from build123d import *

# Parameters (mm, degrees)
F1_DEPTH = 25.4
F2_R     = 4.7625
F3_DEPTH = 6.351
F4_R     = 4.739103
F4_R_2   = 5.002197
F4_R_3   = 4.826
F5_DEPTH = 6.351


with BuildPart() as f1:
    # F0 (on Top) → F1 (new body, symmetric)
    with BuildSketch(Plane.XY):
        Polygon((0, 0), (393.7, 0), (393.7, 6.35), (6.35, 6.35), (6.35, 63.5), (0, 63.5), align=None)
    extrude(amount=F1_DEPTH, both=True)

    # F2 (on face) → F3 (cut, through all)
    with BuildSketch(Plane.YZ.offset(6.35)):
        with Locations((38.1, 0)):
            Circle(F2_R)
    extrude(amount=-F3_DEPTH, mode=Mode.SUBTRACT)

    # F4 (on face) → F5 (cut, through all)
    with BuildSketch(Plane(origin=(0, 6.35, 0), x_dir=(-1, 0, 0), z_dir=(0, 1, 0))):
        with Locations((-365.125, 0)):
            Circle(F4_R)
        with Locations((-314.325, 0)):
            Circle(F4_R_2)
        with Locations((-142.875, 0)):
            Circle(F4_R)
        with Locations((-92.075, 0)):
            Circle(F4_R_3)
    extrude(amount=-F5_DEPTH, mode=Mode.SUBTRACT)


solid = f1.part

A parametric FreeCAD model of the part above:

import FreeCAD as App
import Part
import Sketcher

V = App.Vector
Q = App.Units.Quantity


def add_polygon(sketch, points):
    """Adds a closed chain of lines whose ends are joined by coincident constraints."""
    first, n = sketch.GeometryCount, len(points)
    for a, b in zip(points, points[1:] + points[:1]):
        sketch.addGeometry(Part.LineSegment(App.Vector(*a, 0), App.Vector(*b, 0)), False)
    for i in range(n):
        sketch.addConstraint(Sketcher.Constraint("Coincident", first + i, 2, first + (i + 1) % n, 1))

doc = App.newDocument("Part")
body = doc.addObject("PartDesign::Body", "Body")

sketch1 = body.newObject("Sketcher::SketchObject", "Sketch")
sketch1.AttachmentSupport = (doc.getObject("XY_Plane"), [""])
sketch1.MapMode = "FlatFace"
add_polygon(sketch1, [(0, 0), (393.7, 0), (393.7, 6.35), (6.35, 6.35), (6.35, 63.5), (0, 63.5)])
sketch1.addConstraint([
    Sketcher.Constraint("Horizontal", 0),
    Sketcher.Constraint("Vertical", 1),
    Sketcher.Constraint("Horizontal", 2),
    Sketcher.Constraint("Vertical", 3),
    Sketcher.Constraint("Horizontal", 4),
    Sketcher.Constraint("Vertical", 5),
    Sketcher.Constraint("Coincident", 5, 2, -1, 1),
    Sketcher.Constraint("Equal", 4, 1),
    Sketcher.Constraint("DistanceX", 0, 1, 0, 2, Q("15.5 in")),
    Sketcher.Constraint("DistanceY", 5, 2, 5, 1, Q("2.5 in")),
    Sketcher.Constraint("DistanceX", 2, 2, 2, 1, Q("15.25 in")),
])
pad1 = body.newObject("PartDesign::Pad", "Pad")
pad1.Profile = sketch1
pad1.Length = Q("2 in")
pad1.Midplane = True

sketch2 = body.newObject("Sketcher::SketchObject", "Sketch001")
sketch2.AttachmentSupport = (doc.getObject("YZ_Plane"), [""])
sketch2.MapMode = "FlatFace"
sketch2.AttachmentOffset = App.Placement(V(0, 0, 0.25 * 25.4), App.Rotation())
sketch2.addGeometry(Part.Circle(V(38.1, 0, 0), V(0, 0, 1), 4.7625), False)
sketch2.addConstraint([
    Sketcher.Constraint("PointOnObject", 0, 3, -1),
    Sketcher.Constraint("Diameter", 0, Q("0.375 in")),
    Sketcher.Constraint("DistanceX", -1, 1, 0, 3, Q("1.5 in")),
])
pocket1 = body.newObject("PartDesign::Pocket", "Pocket")
pocket1.Profile = sketch2
pocket1.Type = "ThroughAll"

sketch3 = body.newObject("Sketcher::SketchObject", "Sketch002")
sketch3.AttachmentSupport = (doc.getObject("XZ_Plane"), [""])
sketch3.MapMode = "FlatFace"
sketch3.AttachmentOffset = App.Placement(V(0, 0, -0.25 * 25.4), App.Rotation())
sketch3.addGeometry([
    Part.Circle(V(365.125, 0, 0), V(0, 0, 1), 4.739103),
    Part.Circle(V(314.325, 0, 0), V(0, 0, 1), 5.002197),
    Part.Circle(V(142.875, 0, 0), V(0, 0, 1), 4.739103),
    Part.Circle(V(92.075, 0, 0), V(0, 0, 1), 4.826),
], False)
sketch3.addConstraint([
    Sketcher.Constraint("Equal", 0, 2),
    Sketcher.Constraint("PointOnObject", 0, 3, -1),
    Sketcher.Constraint("PointOnObject", 1, 3, -1),
    Sketcher.Constraint("PointOnObject", 2, 3, -1),
    Sketcher.Constraint("PointOnObject", 3, 3, -1),
    Sketcher.Constraint("Diameter", 3, Q("0.38 in")),
    Sketcher.Constraint("DistanceX", 1, 3, 0, 3, Q("2 in")),
    Sketcher.Constraint("DistanceX", 3, 3, 2, 3, Q("2 in")),
    Sketcher.Constraint("DistanceX", 2, 3, 1, 3, Q("6.75 in")),
    Sketcher.Constraint("DistanceX", -1, 1, 0, 3, Q("14.375 in")),
    Sketcher.Constraint("Diameter", 0, Q("9.478206 mm")),
    Sketcher.Constraint("Diameter", 1, Q("10.004394 mm")),
])
pocket2 = body.newObject("PartDesign::Pocket", "Pocket001")
pocket2.Profile = sketch3
pocket2.Type = "ThroughAll"
pocket2.Reversed = True

doc.recompute()
